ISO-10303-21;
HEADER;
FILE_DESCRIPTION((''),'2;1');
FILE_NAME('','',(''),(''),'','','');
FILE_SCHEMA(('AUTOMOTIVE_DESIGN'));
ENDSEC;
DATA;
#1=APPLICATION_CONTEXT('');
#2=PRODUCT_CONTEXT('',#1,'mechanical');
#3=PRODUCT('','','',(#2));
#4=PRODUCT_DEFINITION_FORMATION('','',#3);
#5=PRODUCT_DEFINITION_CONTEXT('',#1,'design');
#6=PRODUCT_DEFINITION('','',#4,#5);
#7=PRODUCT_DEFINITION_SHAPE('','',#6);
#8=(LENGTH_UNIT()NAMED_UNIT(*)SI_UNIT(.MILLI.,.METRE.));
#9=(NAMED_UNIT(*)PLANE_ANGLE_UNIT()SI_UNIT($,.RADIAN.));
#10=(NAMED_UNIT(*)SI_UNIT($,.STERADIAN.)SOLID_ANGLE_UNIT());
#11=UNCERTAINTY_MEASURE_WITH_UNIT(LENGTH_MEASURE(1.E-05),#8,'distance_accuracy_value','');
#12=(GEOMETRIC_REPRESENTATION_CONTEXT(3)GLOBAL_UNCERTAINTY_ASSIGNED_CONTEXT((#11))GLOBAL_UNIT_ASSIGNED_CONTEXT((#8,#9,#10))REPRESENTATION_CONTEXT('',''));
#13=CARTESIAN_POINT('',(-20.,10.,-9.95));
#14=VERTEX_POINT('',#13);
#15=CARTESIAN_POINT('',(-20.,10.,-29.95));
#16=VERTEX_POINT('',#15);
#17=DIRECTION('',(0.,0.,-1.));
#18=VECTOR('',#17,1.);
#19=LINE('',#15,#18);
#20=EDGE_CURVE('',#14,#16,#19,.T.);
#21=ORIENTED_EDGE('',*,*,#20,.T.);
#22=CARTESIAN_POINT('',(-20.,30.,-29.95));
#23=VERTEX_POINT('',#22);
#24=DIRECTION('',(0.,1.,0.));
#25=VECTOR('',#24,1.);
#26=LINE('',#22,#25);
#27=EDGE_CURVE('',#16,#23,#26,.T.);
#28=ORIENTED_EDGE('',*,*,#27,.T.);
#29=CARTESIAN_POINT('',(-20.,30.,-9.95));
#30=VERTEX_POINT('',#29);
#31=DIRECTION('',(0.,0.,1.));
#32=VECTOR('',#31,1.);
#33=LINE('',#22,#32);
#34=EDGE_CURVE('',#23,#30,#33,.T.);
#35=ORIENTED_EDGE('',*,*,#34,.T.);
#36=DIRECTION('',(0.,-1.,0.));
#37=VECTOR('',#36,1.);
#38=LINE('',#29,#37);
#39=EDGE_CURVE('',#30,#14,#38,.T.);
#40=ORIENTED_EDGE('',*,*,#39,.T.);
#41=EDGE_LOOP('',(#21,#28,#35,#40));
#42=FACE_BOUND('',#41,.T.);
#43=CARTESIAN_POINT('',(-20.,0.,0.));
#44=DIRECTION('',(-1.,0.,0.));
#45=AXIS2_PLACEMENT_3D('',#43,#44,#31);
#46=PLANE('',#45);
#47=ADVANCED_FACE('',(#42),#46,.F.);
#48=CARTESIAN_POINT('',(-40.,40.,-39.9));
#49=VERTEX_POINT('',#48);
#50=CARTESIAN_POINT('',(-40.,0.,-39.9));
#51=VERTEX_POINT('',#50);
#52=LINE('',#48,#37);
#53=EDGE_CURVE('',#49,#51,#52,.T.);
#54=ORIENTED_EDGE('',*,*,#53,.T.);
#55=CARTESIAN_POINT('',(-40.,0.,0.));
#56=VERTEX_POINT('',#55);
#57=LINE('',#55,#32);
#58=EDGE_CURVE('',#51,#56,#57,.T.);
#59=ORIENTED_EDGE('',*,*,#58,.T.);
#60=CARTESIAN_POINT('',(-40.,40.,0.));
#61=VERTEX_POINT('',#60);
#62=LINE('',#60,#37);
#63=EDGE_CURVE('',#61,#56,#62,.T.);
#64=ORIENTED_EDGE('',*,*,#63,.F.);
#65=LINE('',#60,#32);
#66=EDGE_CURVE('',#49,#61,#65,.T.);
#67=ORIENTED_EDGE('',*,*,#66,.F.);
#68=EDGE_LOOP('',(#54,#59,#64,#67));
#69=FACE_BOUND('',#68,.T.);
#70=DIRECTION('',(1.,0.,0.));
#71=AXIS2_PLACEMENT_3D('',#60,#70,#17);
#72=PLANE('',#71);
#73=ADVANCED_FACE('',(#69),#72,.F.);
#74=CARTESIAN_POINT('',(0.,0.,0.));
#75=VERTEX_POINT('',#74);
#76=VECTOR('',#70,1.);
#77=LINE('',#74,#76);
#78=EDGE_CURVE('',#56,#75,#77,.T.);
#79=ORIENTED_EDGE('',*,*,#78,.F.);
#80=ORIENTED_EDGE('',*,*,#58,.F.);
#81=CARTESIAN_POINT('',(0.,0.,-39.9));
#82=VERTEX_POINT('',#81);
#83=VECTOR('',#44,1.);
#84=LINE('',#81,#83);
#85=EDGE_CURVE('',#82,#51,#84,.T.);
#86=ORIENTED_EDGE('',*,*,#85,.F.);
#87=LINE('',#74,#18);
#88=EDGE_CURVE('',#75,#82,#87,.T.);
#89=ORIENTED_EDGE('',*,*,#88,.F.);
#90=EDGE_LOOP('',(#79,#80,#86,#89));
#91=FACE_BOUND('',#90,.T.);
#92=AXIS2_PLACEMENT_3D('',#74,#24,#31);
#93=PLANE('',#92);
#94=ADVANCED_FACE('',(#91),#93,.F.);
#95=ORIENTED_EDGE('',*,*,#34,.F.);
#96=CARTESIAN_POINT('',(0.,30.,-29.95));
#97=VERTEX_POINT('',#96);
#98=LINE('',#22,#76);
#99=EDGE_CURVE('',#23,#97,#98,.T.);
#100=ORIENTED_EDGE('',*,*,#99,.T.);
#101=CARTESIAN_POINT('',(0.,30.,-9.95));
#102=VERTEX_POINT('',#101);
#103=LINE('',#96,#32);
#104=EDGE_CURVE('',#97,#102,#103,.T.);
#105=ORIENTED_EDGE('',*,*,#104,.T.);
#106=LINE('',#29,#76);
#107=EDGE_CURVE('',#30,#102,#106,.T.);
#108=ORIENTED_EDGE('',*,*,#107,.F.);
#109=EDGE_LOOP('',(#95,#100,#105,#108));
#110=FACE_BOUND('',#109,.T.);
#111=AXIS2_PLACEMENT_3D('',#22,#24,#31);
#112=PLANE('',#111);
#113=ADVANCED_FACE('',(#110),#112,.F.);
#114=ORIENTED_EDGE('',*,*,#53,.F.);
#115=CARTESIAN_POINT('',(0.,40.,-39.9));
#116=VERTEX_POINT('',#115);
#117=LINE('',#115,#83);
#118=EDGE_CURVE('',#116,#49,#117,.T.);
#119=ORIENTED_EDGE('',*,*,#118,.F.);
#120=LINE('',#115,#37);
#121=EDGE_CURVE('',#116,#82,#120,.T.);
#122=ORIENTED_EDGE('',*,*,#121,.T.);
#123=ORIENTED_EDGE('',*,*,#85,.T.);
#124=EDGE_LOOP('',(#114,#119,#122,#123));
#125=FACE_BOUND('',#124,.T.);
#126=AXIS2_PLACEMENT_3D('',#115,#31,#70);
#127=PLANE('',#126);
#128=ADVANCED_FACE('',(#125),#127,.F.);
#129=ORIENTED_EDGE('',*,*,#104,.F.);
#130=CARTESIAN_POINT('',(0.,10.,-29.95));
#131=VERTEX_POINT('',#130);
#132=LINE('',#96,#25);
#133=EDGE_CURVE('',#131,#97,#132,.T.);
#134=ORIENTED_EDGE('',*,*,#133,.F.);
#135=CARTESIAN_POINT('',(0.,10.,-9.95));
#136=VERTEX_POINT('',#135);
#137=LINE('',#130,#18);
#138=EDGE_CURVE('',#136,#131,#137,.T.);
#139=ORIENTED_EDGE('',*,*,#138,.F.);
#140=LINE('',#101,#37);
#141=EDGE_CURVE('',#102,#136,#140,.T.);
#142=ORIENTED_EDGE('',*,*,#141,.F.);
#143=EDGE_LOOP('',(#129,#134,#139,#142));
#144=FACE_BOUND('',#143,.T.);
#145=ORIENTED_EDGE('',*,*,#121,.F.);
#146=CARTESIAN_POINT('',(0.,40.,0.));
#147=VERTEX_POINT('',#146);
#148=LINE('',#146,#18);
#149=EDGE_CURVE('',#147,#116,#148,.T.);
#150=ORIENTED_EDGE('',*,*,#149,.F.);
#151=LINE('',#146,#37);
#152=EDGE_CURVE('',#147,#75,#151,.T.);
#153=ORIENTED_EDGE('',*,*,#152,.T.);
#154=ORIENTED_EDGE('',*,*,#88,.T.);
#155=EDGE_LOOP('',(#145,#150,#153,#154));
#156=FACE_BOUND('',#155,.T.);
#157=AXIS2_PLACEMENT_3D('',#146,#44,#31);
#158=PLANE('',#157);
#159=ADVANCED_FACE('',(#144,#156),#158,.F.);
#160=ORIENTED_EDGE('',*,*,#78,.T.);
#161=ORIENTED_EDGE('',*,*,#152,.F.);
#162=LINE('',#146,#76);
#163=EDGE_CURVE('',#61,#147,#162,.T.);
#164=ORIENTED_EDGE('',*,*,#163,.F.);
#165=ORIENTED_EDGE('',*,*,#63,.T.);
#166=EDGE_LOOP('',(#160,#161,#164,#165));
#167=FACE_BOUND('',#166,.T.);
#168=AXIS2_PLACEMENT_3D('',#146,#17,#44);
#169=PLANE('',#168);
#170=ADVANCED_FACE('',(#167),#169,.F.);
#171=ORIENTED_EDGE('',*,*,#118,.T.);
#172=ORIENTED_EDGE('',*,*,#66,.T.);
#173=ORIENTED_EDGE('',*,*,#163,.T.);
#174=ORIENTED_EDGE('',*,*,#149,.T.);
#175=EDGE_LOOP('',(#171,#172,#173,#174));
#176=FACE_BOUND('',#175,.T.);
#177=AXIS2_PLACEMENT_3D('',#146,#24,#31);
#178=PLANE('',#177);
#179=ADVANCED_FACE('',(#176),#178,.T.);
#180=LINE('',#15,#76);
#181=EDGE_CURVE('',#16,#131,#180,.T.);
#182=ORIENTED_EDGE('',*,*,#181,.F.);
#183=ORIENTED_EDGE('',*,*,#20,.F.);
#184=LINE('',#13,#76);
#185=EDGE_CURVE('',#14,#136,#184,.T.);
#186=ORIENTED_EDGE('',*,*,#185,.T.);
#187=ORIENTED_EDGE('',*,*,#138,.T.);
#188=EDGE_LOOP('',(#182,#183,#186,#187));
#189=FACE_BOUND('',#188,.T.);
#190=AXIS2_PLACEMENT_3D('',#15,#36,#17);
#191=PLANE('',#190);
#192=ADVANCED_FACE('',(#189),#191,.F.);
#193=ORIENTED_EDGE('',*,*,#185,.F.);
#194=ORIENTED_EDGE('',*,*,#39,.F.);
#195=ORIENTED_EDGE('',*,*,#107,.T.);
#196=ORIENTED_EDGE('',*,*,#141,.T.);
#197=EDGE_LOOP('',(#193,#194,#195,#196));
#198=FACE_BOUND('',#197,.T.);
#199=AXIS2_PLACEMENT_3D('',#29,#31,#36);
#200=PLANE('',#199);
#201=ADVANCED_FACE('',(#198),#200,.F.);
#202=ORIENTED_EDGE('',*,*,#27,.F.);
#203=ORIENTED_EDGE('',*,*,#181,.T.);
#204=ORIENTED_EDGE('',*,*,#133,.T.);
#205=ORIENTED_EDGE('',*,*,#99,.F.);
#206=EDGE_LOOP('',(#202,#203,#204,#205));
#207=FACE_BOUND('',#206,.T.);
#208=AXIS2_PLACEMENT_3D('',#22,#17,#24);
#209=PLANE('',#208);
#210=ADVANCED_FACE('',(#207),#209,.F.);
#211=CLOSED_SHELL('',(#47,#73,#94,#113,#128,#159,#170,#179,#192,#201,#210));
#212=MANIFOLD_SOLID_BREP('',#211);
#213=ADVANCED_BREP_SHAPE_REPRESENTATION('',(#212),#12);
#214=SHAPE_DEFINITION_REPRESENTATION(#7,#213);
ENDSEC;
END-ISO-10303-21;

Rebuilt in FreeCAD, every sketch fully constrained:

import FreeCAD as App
import Part
import Sketcher

V = App.Vector
Q = App.Units.Quantity

doc = App.newDocument("Part")
body = doc.addObject("PartDesign::Body", "Body")

# Sketch on XZ plane
sketch1 = body.newObject("Sketcher::SketchObject", "Sketch")
sketch1.AttachmentSupport = (doc.getObject("XZ_Plane"), [""])
sketch1.MapMode = "FlatFace"
sketch1.addGeometry(Part.LineSegment(V(-40, -40, 0), V(-40, 0, 0)), False)
sketch1.addGeometry(Part.LineSegment(V(-40, 0, 0), V(0, 0, 0)), False)
sketch1.addGeometry(Part.LineSegment(V(0, 0, 0), V(0, -40, 0)), False)
sketch1.addGeometry(Part.LineSegment(V(0, -40, 0), V(-40, -40, 0)), False)
sketch1.addConstraint(Sketcher.Constraint("Coincident", 0, 2, 1, 1))
sketch1.addConstraint(Sketcher.Constraint("Coincident", 1, 2, 2, 1))
sketch1.addConstraint(Sketcher.Constraint("Coincident", 2, 2, 3, 1))
sketch1.addConstraint(Sketcher.Constraint("Coincident", 3, 2, 0, 1))
sketch1.addConstraint(Sketcher.Constraint("Vertical", 0))
sketch1.addConstraint(Sketcher.Constraint("Horizontal", 1))
sketch1.addConstraint(Sketcher.Constraint("Vertical", 2))
sketch1.addConstraint(Sketcher.Constraint("Horizontal", 3))
sketch1.addConstraint(Sketcher.Constraint("Coincident", 1, 2, -1, 1))
sketch1.addConstraint(Sketcher.Constraint("DistanceX", 1, 1, 1, 2, Q("40 mm")))
sketch1.addConstraint(Sketcher.Constraint("DistanceY", 0, 1, 0, 2, Q("39.9 mm")))
pad1 = body.newObject("PartDesign::Pad", "Pad")
pad1.Profile = sketch1
pad1.Length = 40
pad1.Reversed = True

# Sketch on YZ plane
sketch2 = body.newObject("Sketcher::SketchObject", "Sketch001")
sketch2.AttachmentSupport = (doc.getObject("YZ_Plane"), [""])
sketch2.MapMode = "FlatFace"
sketch2.addGeometry(Part.LineSegment(V(30, -10, 0), V(10, -10, 0)), False)
sketch2.addGeometry(Part.LineSegment(V(10, -10, 0), V(10, -30, 0)), False)
sketch2.addGeometry(Part.LineSegment(V(10, -30, 0), V(30, -30, 0)), False)
sketch2.addGeometry(Part.LineSegment(V(30, -30, 0), V(30, -10, 0)), False)
sketch2.addConstraint(Sketcher.Constraint("Coincident", 0, 2, 1, 1))
sketch2.addConstraint(Sketcher.Constraint("Coincident", 1, 2, 2, 1))
sketch2.addConstraint(Sketcher.Constraint("Coincident", 2, 2, 3, 1))
sketch2.addConstraint(Sketcher.Constraint("Coincident", 3, 2, 0, 1))
sketch2.addConstraint(Sketcher.Constraint("Horizontal", 0))
sketch2.addConstraint(Sketcher.Constraint("Vertical", 1))
sketch2.addConstraint(Sketcher.Constraint("Horizontal", 2))
sketch2.addConstraint(Sketcher.Constraint("Vertical", 3))
sketch2.addConstraint(Sketcher.Constraint("Equal", 2, 1))
sketch2.addConstraint(Sketcher.Constraint("DistanceX", 0, 2, 0, 1, Q("20 mm")))
sketch2.addConstraint(Sketcher.Constraint("DistanceX", -1, 1, 0, 2, Q("10 mm")))
sketch2.addConstraint(Sketcher.Constraint("DistanceY", 0, 2, -1, 1, Q("9.95 mm")))
pocket1 = body.newObject("PartDesign::Pocket", "Pocket")
pocket1.Profile = sketch2
pocket1.Length = 20

doc.recompute()
